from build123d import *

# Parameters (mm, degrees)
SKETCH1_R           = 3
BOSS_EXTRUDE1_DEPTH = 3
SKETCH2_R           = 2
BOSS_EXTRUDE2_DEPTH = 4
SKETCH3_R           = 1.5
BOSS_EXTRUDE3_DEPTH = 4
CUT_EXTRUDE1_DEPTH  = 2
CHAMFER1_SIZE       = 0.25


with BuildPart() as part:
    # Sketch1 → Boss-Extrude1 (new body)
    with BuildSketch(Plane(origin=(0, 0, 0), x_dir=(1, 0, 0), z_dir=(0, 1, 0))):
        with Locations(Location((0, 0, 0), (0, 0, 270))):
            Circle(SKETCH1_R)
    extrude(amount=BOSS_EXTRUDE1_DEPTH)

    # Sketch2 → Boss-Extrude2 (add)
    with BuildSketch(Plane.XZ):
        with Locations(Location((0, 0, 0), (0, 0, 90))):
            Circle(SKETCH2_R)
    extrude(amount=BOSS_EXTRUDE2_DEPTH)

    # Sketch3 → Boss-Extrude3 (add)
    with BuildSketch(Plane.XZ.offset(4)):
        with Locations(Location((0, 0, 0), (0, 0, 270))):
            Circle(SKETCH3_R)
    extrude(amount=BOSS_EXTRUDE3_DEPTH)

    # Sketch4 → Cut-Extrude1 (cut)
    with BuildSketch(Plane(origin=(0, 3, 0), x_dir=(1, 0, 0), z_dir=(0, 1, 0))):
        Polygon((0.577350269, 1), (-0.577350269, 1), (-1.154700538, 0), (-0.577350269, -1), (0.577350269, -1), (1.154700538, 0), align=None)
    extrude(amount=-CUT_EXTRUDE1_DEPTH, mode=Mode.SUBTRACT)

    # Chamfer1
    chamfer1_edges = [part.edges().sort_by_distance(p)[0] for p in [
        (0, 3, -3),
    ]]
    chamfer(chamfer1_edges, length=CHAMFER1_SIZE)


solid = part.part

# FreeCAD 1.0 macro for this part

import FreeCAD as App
import Part
import Sketcher

V = App.Vector
Q = App.Units.Quantity


def edges_at(feature, points):
    """Names of the edges that pass closest to the given points."""
    edges = feature.Shape.Edges
    near = lambda p: min(range(len(edges)), key=lambda i: edges[i].distToShape(Part.Vertex(*p))[0])
    return sorted({f"Edge{near(p) + 1}" for p in points})

doc = App.newDocument("Part")
params = doc.addObject("Spreadsheet::Sheet", "Params")
for row, (alias, value) in enumerate([
    ("sketch1_diameter", "6 mm"),
    ("pad1_length", "3 mm"),
    ("sketch2_diameter", "4 mm"),
    ("pad2_length", "4 mm"),
    ("sketch3_diameter", "3 mm"),
    ("pad3_length", "4 mm"),
    ("pocket1_length", "2 mm"),
    ("chamfer_size", "0.25 mm"),
], start=1):
    params.set(f"A{row}", alias)
    params.set(f"B{row}", "=" + value)
    params.setAlias(f"B{row}", alias)

body = doc.addObject("PartDesign::Body", "Body")

sketch1 = body.newObject("Sketcher::SketchObject", "Sketch")
sketch1.AttachmentSupport = (doc.getObject("XZ_Plane"), [""])
sketch1.MapMode = "FlatFace"
sketch1.addGeometry(Part.Circle(V(0, 0, 0), V(0, 0, 1), 3), False)
sketch1.addConstraint([
    Sketcher.Constraint("Coincident", 0, 3, -1, 1),
    Sketcher.Constraint("Diameter", 0, 6.0),
])
sketch1.setExpression("Constraints[1]", "Params.sketch1_diameter")
pad1 = body.newObject("PartDesign::Pad", "Pad")
pad1.Profile = sketch1
pad1.setExpression("Length", "Params.pad1_length")
pad1.Reversed = True

sketch2 = body.newObject("Sketcher::SketchObject", "Sketch001")
sketch2.AttachmentSupport = (doc.getObject("XZ_Plane"), [""])
sketch2.MapMode = "FlatFace"
sketch2.addGeometry(Part.Circle(V(0, 0, 0), V(0, 0, 1), 2), False)
sketch2.addConstraint([
    Sketcher.Constraint("Coincident", 0, 3, -1, 1),
    Sketcher.Constraint("Diameter", 0, 4.0),
])
sketch2.setExpression("Constraints[1]", "Params.sketch2_diameter")
pad2 = body.newObject("PartDesign::Pad", "Pad001")
pad2.Profile = sketch2
pad2.setExpression("Length", "Params.pad2_length")

sketch3 = body.newObject("Sketcher::SketchObject", "Sketch002")
sketch3.AttachmentSupport = (doc.getObject("XZ_Plane"), [""])
sketch3.MapMode = "FlatFace"
sketch3.AttachmentOffset = App.Placement(V(0, 0, 4), App.Rotation())
sketch3.addGeometry(Part.Circle(V(0, 0, 0), V(0, 0, 1), 1.5), False)
sketch3.addConstraint([
    Sketcher.Constraint("Coincident", 0, 3, -1, 1),
    Sketcher.Constraint("Diameter", 0, 3.0),
])
sketch3.setExpression("Constraints[1]", "Params.sketch3_diameter")
pad3 = body.newObject("PartDesign::Pad", "Pad002")
pad3.Profile = sketch3
pad3.setExpression("Length", "Params.pad3_length")

sketch4 = body.newObject("Sketcher::SketchObject", "Sketch003")
sketch4.AttachmentSupport = (doc.getObject("XZ_Plane"), [""])
sketch4.MapMode = "FlatFace"
sketch4.AttachmentOffset = App.Placement(V(0, 0, -3), App.Rotation())
sketch4.addGeometry([
    Part.LineSegment(V(0.57735, -1, 0), V(-0.57735, -1, 0)),
    Part.LineSegment(V(-0.57735, -1, 0), V(-1.154701, 0, 0)),
    Part.LineSegment(V(-1.154701, 0, 0), V(-0.57735, 1, 0)),
    Part.LineSegment(V(-0.57735, 1, 0), V(0.57735, 1, 0)),
    Part.LineSegment(V(0.57735, 1, 0), V(1.154701, 0, 0)),
    Part.LineSegment(V(1.154701, 0, 0), V(0.57735, -1, 0)),
], False)
sketch4.addConstraint([
    Sketcher.Constraint("Coincident", 0, 2, 1, 1),
    Sketcher.Constraint("Coincident", 1, 2, 2, 1),
    Sketcher.Constraint("Coincident", 2, 2, 3, 1),
    Sketcher.Constraint("Coincident", 3, 2, 4, 1),
    Sketcher.Constraint("Coincident", 4, 2, 5, 1),
    Sketcher.Constraint("Coincident", 5, 2, 0, 1),
    Sketcher.Constraint("Horizontal", 0),
    Sketcher.Constraint("Horizontal", 3),
    Sketcher.Constraint("Symmetric", 0, 2, 3, 2, -1, 1),
    Sketcher.Constraint("Symmetric", 1, 2, 4, 2, -1, 1),
    Sketcher.Constraint("PointOnObject", 1, 2, -1),
    Sketcher.Constraint("Parallel", 2, 5),
    Sketcher.Constraint("Vertical", 0, 2, 2, 2),
    Sketcher.Constraint("Angle", 1, Q("120 deg")),
    Sketcher.Constraint("DistanceY", 0, 2, -1, 1, 1.0),
    Sketcher.Constraint("DistanceX", 0, 2, 0, 1, 1.154701),
])
pocket1 = body.newObject("PartDesign::Pocket", "Pocket")
pocket1.Profile = sketch4
pocket1.setExpression("Length", "Params.pocket1_length")
pocket1.Reversed = True
doc.recompute()

chamfer = body.newObject("PartDesign::Chamfer", "Chamfer")
chamfer.Base = (pocket1, edges_at(pocket1, [(0, 3, -3)]))
chamfer.setExpression("Size", "Params.chamfer_size")

doc.recompute()
